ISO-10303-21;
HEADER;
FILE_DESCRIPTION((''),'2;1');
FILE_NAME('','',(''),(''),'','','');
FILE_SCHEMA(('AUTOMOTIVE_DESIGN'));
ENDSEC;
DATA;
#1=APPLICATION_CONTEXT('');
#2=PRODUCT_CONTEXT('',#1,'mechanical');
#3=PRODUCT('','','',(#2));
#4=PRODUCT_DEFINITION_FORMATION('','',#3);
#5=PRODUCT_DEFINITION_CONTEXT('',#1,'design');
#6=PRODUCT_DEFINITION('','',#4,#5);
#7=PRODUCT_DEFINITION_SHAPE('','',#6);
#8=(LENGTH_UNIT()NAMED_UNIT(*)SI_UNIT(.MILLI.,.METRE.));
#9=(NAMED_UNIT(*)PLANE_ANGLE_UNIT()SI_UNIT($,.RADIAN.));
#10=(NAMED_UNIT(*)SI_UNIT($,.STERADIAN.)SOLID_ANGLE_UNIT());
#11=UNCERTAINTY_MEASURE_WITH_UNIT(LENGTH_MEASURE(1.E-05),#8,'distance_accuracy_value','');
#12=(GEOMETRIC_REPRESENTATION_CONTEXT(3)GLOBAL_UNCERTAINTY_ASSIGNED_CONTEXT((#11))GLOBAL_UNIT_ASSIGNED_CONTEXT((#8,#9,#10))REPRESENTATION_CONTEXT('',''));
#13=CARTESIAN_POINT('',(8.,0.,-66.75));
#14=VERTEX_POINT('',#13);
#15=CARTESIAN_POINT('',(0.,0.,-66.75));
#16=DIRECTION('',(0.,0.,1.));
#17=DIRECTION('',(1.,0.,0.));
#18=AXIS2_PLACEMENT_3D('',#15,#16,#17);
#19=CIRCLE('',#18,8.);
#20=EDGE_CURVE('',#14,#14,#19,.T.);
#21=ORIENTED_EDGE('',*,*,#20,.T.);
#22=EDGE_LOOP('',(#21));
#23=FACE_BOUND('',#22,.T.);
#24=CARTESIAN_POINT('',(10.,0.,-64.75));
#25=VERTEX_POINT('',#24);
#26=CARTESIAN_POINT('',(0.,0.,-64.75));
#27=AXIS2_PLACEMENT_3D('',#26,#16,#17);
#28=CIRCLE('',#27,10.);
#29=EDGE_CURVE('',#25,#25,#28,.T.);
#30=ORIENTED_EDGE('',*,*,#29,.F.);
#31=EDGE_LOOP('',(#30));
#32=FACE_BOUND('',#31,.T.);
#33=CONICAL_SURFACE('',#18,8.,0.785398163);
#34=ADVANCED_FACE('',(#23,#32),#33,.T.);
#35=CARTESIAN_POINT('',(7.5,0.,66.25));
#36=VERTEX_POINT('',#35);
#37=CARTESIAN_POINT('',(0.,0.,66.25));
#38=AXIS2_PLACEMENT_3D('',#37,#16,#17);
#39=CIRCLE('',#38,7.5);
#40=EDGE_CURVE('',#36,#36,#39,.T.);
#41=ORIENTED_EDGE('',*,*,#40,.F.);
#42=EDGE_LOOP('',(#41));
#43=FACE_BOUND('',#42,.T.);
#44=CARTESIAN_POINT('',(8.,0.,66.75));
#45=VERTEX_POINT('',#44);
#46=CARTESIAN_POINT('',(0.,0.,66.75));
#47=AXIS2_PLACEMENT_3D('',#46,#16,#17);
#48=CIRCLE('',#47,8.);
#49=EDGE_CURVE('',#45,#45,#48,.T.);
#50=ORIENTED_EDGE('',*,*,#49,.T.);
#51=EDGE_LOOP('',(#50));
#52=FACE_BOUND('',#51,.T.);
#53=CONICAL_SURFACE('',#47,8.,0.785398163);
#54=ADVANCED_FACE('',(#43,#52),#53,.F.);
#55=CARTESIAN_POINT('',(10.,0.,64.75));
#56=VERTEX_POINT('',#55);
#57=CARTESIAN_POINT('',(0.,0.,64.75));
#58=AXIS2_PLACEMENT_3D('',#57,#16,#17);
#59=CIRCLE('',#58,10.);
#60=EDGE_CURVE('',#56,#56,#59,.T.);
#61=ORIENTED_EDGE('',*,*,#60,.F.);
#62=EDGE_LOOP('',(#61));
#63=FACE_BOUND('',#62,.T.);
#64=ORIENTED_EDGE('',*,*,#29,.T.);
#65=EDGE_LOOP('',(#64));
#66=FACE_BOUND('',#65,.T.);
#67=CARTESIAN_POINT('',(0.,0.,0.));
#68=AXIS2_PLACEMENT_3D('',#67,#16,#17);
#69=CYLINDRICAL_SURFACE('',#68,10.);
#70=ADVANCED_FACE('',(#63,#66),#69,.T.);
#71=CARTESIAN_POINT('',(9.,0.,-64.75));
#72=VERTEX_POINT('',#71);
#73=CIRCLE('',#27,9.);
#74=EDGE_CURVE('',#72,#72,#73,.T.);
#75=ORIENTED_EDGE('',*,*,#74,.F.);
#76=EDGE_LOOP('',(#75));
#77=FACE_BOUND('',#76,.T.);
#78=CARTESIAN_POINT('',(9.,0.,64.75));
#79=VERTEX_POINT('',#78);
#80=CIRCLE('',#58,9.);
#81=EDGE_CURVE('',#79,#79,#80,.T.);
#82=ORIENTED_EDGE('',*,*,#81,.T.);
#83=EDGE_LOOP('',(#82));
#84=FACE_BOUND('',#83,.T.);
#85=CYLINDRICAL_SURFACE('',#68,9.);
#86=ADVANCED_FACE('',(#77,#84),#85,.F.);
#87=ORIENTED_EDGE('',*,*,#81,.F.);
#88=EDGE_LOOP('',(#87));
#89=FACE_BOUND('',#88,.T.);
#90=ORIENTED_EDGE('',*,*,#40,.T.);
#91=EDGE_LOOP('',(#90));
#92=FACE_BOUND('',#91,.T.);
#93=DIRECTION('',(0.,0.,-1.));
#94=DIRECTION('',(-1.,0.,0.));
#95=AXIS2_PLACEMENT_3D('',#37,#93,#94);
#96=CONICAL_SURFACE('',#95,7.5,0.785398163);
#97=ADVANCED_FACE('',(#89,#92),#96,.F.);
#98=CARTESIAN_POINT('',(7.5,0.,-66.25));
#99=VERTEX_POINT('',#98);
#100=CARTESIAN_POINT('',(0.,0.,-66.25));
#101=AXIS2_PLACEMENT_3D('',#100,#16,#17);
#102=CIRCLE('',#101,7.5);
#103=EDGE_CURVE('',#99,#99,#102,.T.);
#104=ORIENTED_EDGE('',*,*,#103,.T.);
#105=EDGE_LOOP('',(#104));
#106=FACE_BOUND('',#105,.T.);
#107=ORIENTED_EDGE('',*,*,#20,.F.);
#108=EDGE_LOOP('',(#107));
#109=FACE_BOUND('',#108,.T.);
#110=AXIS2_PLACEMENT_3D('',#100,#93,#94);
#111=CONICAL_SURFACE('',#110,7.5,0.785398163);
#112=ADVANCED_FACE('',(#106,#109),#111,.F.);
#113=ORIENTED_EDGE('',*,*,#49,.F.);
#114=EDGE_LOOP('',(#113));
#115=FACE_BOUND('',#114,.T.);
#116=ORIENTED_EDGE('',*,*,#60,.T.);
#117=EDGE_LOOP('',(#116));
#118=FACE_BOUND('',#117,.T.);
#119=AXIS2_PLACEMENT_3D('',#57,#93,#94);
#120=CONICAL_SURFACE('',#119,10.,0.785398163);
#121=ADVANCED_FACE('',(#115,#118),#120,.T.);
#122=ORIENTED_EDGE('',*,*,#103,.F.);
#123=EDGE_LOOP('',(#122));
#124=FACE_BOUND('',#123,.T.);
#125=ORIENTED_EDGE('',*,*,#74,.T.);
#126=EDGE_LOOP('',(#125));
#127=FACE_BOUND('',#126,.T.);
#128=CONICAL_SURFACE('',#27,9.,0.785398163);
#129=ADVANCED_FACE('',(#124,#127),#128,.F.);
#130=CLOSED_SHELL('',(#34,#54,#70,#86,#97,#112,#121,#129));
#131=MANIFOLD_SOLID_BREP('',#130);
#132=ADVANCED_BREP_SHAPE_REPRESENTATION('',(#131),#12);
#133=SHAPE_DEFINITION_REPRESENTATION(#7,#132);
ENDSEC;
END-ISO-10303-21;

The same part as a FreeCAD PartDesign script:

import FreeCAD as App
import Part
import Sketcher

V = App.Vector
Q = App.Units.Quantity


def add_polygon(sketch, points):
    """Adds a closed chain of lines whose ends are joined by coincident constraints."""
    first, n = sketch.GeometryCount, len(points)
    for a, b in zip(points, points[1:] + points[:1]):
        sketch.addGeometry(Part.LineSegment(App.Vector(*a, 0), App.Vector(*b, 0)), False)
    for i in range(n):
        sketch.addConstraint(Sketcher.Constraint("Coincident", first + i, 2, first + (i + 1) % n, 1))

doc = App.newDocument("Part")
body = doc.addObject("PartDesign::Body", "Body")

# Sketch on YZ plane
sketch1 = doc.addObject("Sketcher::SketchObject", "Sketch")
body.addObject(sketch1)
sketch1.AttachmentSupport = (doc.YZ_Plane, [""])
sketch1.MapMode = "FlatFace"
add_polygon(sketch1, [(10, -64.8), (10, 64.8), (8, 66.8), (7.5, 66.2), (9, 64.8), (9, -64.8), (7.5, -66.2), (8, -66.8)])  # lines 0-7
sketch1.addConstraint(Sketcher.Constraint("Vertical", 0))
sketch1.addConstraint(Sketcher.Constraint("Vertical", 4))
sketch1.addConstraint(Sketcher.Constraint("Symmetric", 2, 2, 5, 2, -1))
sketch1.addConstraint(Sketcher.Constraint("Symmetric", 1, 2, 6, 2, -1))
sketch1.addConstraint(Sketcher.Constraint("Perpendicular", 1, 2))
sketch1.addConstraint(Sketcher.Constraint("Perpendicular", 2, 3))
sketch1.addConstraint(Sketcher.Constraint("Perpendicular", 3, 5))
sketch1.addConstraint(Sketcher.Constraint("Perpendicular", 5, 6))
sketch1.addConstraint(Sketcher.Constraint("Perpendicular", 6, 7))
sketch1.addConstraint(Sketcher.Constraint("Horizontal", 0, 2, 3, 2))
sketch1.addConstraint(Sketcher.Constraint("DistanceY", 0, 1, 0, 2, Q("129.5 mm")))
sketch1.addConstraint(Sketcher.Constraint("DistanceX", -1, 1, 0, 2, Q("10 mm")))
sketch1.addConstraint(Sketcher.Constraint("DistanceX", -1, 1, 1, 2, Q("8 mm")))
sketch1.addConstraint(Sketcher.Constraint("DistanceX", -1, 1, 3, 2, Q("9 mm")))
revolution = doc.addObject("PartDesign::Revolution", "Revolution")
body.addObject(revolution)
revolution.Profile = sketch1
revolution.ReferenceAxis = (sketch1, ["V_Axis"])
revolution.Angle = 360

doc.recompute()
